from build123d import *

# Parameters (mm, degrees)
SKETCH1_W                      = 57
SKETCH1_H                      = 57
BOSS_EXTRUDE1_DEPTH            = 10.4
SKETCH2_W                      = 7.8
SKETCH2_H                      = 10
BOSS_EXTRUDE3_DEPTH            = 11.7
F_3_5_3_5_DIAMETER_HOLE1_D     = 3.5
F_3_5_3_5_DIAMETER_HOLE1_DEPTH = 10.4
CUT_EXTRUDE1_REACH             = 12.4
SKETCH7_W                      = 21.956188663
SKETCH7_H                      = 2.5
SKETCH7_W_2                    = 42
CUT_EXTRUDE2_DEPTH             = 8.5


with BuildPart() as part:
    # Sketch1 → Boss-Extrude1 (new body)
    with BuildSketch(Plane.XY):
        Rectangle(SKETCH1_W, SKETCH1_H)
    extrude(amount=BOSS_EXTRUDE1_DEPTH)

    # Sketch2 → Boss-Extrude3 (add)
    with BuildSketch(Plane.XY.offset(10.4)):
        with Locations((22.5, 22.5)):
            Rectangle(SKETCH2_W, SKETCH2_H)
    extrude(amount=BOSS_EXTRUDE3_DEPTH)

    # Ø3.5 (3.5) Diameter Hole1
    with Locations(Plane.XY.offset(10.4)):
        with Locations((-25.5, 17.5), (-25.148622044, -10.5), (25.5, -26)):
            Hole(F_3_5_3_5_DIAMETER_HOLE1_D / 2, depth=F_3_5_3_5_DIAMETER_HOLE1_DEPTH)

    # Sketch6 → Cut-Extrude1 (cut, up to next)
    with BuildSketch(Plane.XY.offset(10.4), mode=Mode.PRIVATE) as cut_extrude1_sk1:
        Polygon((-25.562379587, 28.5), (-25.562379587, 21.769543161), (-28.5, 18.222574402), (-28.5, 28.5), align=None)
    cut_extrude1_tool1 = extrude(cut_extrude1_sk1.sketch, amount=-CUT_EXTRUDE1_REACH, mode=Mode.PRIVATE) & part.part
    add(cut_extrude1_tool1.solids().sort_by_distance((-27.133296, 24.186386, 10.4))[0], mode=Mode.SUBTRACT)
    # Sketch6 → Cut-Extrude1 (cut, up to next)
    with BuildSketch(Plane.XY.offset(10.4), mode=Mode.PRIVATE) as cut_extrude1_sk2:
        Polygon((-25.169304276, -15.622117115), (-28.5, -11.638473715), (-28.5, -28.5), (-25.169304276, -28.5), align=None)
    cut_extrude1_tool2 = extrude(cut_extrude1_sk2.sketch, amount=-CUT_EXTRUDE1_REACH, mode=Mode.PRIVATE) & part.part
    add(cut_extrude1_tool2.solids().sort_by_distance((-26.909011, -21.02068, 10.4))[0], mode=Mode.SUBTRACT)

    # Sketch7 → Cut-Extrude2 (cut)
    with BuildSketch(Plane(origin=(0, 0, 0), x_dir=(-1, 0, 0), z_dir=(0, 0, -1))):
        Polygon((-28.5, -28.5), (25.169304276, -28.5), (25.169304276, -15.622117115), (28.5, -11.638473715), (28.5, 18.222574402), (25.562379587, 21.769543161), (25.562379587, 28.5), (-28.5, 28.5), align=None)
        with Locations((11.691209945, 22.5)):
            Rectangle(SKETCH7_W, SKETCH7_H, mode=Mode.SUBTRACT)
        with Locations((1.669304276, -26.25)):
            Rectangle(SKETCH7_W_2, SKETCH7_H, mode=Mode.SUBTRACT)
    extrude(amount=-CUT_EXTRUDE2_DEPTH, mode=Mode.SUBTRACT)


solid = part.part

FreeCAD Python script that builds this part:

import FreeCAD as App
import Part
import Sketcher

V = App.Vector


def add_polygon(sketch, points):
    """Adds a closed chain of lines whose ends are joined by coincident constraints."""
    first, n = sketch.GeometryCount, len(points)
    for a, b in zip(points, points[1:] + points[:1]):
        sketch.addGeometry(Part.LineSegment(App.Vector(*a, 0), App.Vector(*b, 0)), False)
    for i in range(n):
        sketch.addConstraint(Sketcher.Constraint("Coincident", first + i, 2, first + (i + 1) % n, 1))

doc = App.newDocument("Part")
params = doc.addObject("Spreadsheet::Sheet", "Params")
for row, (alias, value) in enumerate([
    ("sketch1_width", "57 mm"),
    ("pad1_length", "10.4 mm"),
    ("sketch2_height", "10 mm"),
    ("sketch2_width", "7.8 mm"),
    ("pad2_length", "11.7 mm"),
    ("sketch3_diameter", "3.5 mm"),
    ("hole_diameter", "3.5 mm"),
    ("hole_depth", "10.4 mm"),
    ("sketch6_width", "42 mm"),
    ("sketch6_height", "57 mm"),
    ("sketch6_height2", "2.5 mm"),
    ("pocket3_length", "8.5 mm"),
], start=1):
    params.set(f"A{row}", alias)
    params.set(f"B{row}", "=" + value)
    params.setAlias(f"B{row}", alias)

body = doc.addObject("PartDesign::Body", "Body")

# Sketch on XY plane
sketch1 = body.newObject("Sketcher::SketchObject", "Sketch")
sketch1.AttachmentSupport = (doc.getObject("XY_Plane"), [""])
sketch1.MapMode = "FlatFace"
add_polygon(sketch1, [(-28.5, 28.5), (-28.5, -28.5), (28.5, -28.5), (28.5, 28.5)])  # lines 0-3
sketch1.addConstraint([
    Sketcher.Constraint("Vertical", 0),
    Sketcher.Constraint("Horizontal", 1),
    Sketcher.Constraint("Vertical", 2),
    Sketcher.Constraint("Horizontal", 3),
    Sketcher.Constraint("Symmetric", 0, 2, 2, 2, -1, 1),
    Sketcher.Constraint("Equal", 3, 0),
    Sketcher.Constraint("DistanceX", 1, 1, 1, 2, 57.0),
])
sketch1.setExpression("Constraints[10]", "Params.sketch1_width")
pad1 = body.newObject("PartDesign::Pad", "Pad")
pad1.Profile = sketch1
pad1.setExpression("Length", "Params.pad1_length")

# Sketch on XY plane
sketch2 = body.newObject("Sketcher::SketchObject", "Sketch001")
sketch2.AttachmentSupport = (doc.getObject("XY_Plane"), [""])
sketch2.MapMode = "FlatFace"
sketch2.AttachmentOffset = App.Placement(V(0, 0, 10.4), App.Rotation())
add_polygon(sketch2, [(18.6, 27.5), (18.6, 17.5), (26.4, 17.5), (26.4, 27.5)])  # lines 0-3
sketch2.addConstraint([
    Sketcher.Constraint("Vertical", 0),
    Sketcher.Constraint("Horizontal", 1),
    Sketcher.Constraint("Vertical", 2),
    Sketcher.Constraint("Horizontal", 3),
    Sketcher.Constraint("DistanceY", 0, 2, 0, 1, 10.0),
    Sketcher.Constraint("DistanceX", 1, 1, 1, 2, 7.8),
    Sketcher.Constraint("DistanceX", -1, 1, 0, 2, 18.6),
    Sketcher.Constraint("DistanceY", -1, 1, 0, 2, 17.5),
])
sketch2.setExpression("Constraints[8]", "Params.sketch2_height")
sketch2.setExpression("Constraints[9]", "Params.sketch2_width")
pad2 = body.newObject("PartDesign::Pad", "Pad001")
pad2.Profile = sketch2
pad2.setExpression("Length", "Params.pad2_length")

# Sketch on XY plane
sketch3 = body.newObject("Sketcher::SketchObject", "Sketch002")
sketch3.AttachmentSupport = (doc.getObject("XY_Plane"), [""])
sketch3.MapMode = "FlatFace"
sketch3.AttachmentOffset = App.Placement(V(0, 0, 10.4), App.Rotation())
sketch3.addGeometry([
    Part.Circle(V(-25.5, 17.5, 0), V(0, 0, 1), 1.75),
    Part.Circle(V(-25.148622, -10.5, 0), V(0, 0, 1), 1.75),
    Part.Circle(V(25.5, -26, 0), V(0, 0, 1), 1.75),
], False)
sketch3.addConstraint([
    Sketcher.Constraint("Equal", 0, 1),
    Sketcher.Constraint("Equal", 1, 2),
    Sketcher.Constraint("Diameter", 0, 3.5),
    Sketcher.Constraint("DistanceY", 2, 3, -1, 1, 26.0),
    Sketcher.Constraint("DistanceY", 1, 3, 0, 3, 28.0),
    Sketcher.Constraint("DistanceX", 0, 3, 2, 3, 51.0),
    Sketcher.Constraint("DistanceX", 0, 3, -1, 1, 25.5),
    Sketcher.Constraint("DistanceY", -1, 1, 0, 3, 17.5),
    Sketcher.Constraint("DistanceX", 1, 3, -1, 1, 25.148622),
])
sketch3.setExpression("Constraints[2]", "Params.sketch3_diameter")
doc.recompute()
hole = body.newObject("PartDesign::Hole", "Hole")
hole.Profile = sketch3
hole.ThreadType = "None"
hole.setExpression("Diameter", "Params.hole_diameter")
hole.DepthType = "Dimension"
hole.setExpression("Depth", "Params.hole_depth")
hole.DrillPoint = "Flat"

# Sketch on XY plane
sketch4 = body.newObject("Sketcher::SketchObject", "Sketch003")
sketch4.AttachmentSupport = (doc.getObject("XY_Plane"), [""])
sketch4.MapMode = "FlatFace"
sketch4.AttachmentOffset = App.Placement(V(0, 0, 10.4), App.Rotation())
add_polygon(sketch4, [(-25.56238, 21.769543), (-25.56238, 28.5), (-28.5, 28.5), (-28.5, 18.222574)])  # lines 0-3
sketch4.addConstraint([
    Sketcher.Constraint("Vertical", 0),
    Sketcher.Constraint("Horizontal", 1),
    Sketcher.Constraint("Vertical", 2),
    Sketcher.Constraint("DistanceY", -1, 1, 0, 2, 28.5),
    Sketcher.Constraint("DistanceX", 1, 2, -1, 1, 28.5),
    Sketcher.Constraint("DistanceX", 1, 2, 1, 1, 2.93762),
    Sketcher.Constraint("DistanceY", 0, 1, 0, 2, 6.730457),
    Sketcher.Constraint("DistanceY", 2, 2, 2, 1, 10.277426),
])
pocket1 = body.newObject("PartDesign::Pocket", "Pocket")
pocket1.Profile = sketch4
pocket1.Type = "UpToFirst"

# Sketch on XY plane
sketch5 = body.newObject("Sketcher::SketchObject", "Sketch004")
sketch5.AttachmentSupport = (doc.getObject("XY_Plane"), [""])
sketch5.MapMode = "FlatFace"
sketch5.AttachmentOffset = App.Placement(V(0, 0, 10.4), App.Rotation())
add_polygon(sketch5, [(-25.169304, -15.622117), (-28.5, -11.638474), (-28.5, -28.5), (-25.169304, -28.5)])  # lines 0-3
sketch5.addConstraint([
    Sketcher.Constraint("Vertical", 1),
    Sketcher.Constraint("Horizontal", 2),
    Sketcher.Constraint("Vertical", 3),
    Sketcher.Constraint("DistanceX", 0, 2, -1, 1, 28.5),
    Sketcher.Constraint("DistanceY", 1, 2, -1, 1, 28.5),
    Sketcher.Constraint("DistanceX", 2, 1, 2, 2, 3.330696),
    Sketcher.Constraint("DistanceY", 1, 2, 1, 1, 16.861526),
    Sketcher.Constraint("DistanceY", 3, 1, 3, 2, 12.877883),
])
pocket2 = body.newObject("PartDesign::Pocket", "Pocket001")
pocket2.Profile = sketch5
pocket2.Type = "UpToFirst"

# Sketch on XY plane
sketch6 = body.newObject("Sketcher::SketchObject", "Sketch005")
sketch6.AttachmentSupport = (doc.getObject("XY_Plane"), [""])
sketch6.MapMode = "FlatFace"
add_polygon(sketch6, [(28.5, -28.5), (-25.169304, -28.5), (-25.169304, -15.622117), (-28.5, -11.638474), (-28.5, 18.222574), (-25.56238, 21.769543), (-25.56238, 28.5), (28.5, 28.5)])  # lines 0-7
add_polygon(sketch6, [(-22.669304, -27.5), (19.330696, -27.5), (19.330696, -25), (-22.669304, -25)])  # lines 8-11
add_polygon(sketch6, [(-22.669304, 21.25), (-0.713116, 21.25), (-0.713116, 23.75), (-22.669304, 23.75)])  # lines 12-15
sketch6.addConstraint([
    Sketcher.Constraint("Horizontal", 0),
    Sketcher.Constraint("Vertical", 1),
    Sketcher.Constraint("Vertical", 3),
    Sketcher.Constraint("Vertical", 5),
    Sketcher.Constraint("Horizontal", 6),
    Sketcher.Constraint("Vertical", 7),
    Sketcher.Constraint("Horizontal", 8),
    Sketcher.Constraint("Vertical", 9),
    Sketcher.Constraint("Horizontal", 10),
    Sketcher.Constraint("Vertical", 11),
    Sketcher.Constraint("Horizontal", 12),
    Sketcher.Constraint("Vertical", 13),
    Sketcher.Constraint("Horizontal", 14),
    Sketcher.Constraint("Vertical", 15),
    Sketcher.Constraint("Vertical", 11, 2, 14, 2),
    Sketcher.Constraint("Equal", 11, 13),
    Sketcher.Constraint("DistanceX", 8, 1, 8, 2, 42.0),
    Sketcher.Constraint("DistanceY", 7, 2, 7, 1, 57.0),
    Sketcher.Constraint("DistanceY", 9, 1, 9, 2, 2.5),
    Sketcher.Constraint("DistanceY", 9, 2, -1, 1, 25.0),
    Sketcher.Constraint("DistanceX", 3, 2, 6, 2, 57.0),
    Sketcher.Constraint("DistanceY", 7, 2, 8, 2, 1.0),
    Sketcher.Constraint("DistanceX", 2, 2, -1, 1, 28.5),
    Sketcher.Constraint("DistanceX", 0, 2, 8, 2, 44.5),
    Sketcher.Constraint("DistanceY", -1, 1, 12, 2, 21.25),
    Sketcher.Constraint("DistanceX", 6, 1, 6, 2, 54.06238),
    Sketcher.Constraint("DistanceX", 12, 1, 12, 2, 21.956189),
    Sketcher.Constraint("DistanceY", 3, 1, 3, 2, 29.861048),
    Sketcher.Constraint("DistanceX", 0, 2, 0, 1, 53.669304),
    Sketcher.Constraint("DistanceY", 1, 1, 1, 2, 12.877883),
    Sketcher.Constraint("DistanceY", 5, 1, 5, 2, 6.730457),
    Sketcher.Constraint("DistanceY", 1, 2, 3, 2, 33.844692),
])
sketch6.setExpression("Constraints[32]", "Params.sketch6_width")
sketch6.setExpression("Constraints[33]", "Params.sketch6_height")
sketch6.setExpression("Constraints[34]", "Params.sketch6_height2")
pocket3 = body.newObject("PartDesign::Pocket", "Pocket002")
pocket3.Profile = sketch6
pocket3.setExpression("Length", "Params.pocket3_length")
pocket3.Reversed = True

doc.recompute()
